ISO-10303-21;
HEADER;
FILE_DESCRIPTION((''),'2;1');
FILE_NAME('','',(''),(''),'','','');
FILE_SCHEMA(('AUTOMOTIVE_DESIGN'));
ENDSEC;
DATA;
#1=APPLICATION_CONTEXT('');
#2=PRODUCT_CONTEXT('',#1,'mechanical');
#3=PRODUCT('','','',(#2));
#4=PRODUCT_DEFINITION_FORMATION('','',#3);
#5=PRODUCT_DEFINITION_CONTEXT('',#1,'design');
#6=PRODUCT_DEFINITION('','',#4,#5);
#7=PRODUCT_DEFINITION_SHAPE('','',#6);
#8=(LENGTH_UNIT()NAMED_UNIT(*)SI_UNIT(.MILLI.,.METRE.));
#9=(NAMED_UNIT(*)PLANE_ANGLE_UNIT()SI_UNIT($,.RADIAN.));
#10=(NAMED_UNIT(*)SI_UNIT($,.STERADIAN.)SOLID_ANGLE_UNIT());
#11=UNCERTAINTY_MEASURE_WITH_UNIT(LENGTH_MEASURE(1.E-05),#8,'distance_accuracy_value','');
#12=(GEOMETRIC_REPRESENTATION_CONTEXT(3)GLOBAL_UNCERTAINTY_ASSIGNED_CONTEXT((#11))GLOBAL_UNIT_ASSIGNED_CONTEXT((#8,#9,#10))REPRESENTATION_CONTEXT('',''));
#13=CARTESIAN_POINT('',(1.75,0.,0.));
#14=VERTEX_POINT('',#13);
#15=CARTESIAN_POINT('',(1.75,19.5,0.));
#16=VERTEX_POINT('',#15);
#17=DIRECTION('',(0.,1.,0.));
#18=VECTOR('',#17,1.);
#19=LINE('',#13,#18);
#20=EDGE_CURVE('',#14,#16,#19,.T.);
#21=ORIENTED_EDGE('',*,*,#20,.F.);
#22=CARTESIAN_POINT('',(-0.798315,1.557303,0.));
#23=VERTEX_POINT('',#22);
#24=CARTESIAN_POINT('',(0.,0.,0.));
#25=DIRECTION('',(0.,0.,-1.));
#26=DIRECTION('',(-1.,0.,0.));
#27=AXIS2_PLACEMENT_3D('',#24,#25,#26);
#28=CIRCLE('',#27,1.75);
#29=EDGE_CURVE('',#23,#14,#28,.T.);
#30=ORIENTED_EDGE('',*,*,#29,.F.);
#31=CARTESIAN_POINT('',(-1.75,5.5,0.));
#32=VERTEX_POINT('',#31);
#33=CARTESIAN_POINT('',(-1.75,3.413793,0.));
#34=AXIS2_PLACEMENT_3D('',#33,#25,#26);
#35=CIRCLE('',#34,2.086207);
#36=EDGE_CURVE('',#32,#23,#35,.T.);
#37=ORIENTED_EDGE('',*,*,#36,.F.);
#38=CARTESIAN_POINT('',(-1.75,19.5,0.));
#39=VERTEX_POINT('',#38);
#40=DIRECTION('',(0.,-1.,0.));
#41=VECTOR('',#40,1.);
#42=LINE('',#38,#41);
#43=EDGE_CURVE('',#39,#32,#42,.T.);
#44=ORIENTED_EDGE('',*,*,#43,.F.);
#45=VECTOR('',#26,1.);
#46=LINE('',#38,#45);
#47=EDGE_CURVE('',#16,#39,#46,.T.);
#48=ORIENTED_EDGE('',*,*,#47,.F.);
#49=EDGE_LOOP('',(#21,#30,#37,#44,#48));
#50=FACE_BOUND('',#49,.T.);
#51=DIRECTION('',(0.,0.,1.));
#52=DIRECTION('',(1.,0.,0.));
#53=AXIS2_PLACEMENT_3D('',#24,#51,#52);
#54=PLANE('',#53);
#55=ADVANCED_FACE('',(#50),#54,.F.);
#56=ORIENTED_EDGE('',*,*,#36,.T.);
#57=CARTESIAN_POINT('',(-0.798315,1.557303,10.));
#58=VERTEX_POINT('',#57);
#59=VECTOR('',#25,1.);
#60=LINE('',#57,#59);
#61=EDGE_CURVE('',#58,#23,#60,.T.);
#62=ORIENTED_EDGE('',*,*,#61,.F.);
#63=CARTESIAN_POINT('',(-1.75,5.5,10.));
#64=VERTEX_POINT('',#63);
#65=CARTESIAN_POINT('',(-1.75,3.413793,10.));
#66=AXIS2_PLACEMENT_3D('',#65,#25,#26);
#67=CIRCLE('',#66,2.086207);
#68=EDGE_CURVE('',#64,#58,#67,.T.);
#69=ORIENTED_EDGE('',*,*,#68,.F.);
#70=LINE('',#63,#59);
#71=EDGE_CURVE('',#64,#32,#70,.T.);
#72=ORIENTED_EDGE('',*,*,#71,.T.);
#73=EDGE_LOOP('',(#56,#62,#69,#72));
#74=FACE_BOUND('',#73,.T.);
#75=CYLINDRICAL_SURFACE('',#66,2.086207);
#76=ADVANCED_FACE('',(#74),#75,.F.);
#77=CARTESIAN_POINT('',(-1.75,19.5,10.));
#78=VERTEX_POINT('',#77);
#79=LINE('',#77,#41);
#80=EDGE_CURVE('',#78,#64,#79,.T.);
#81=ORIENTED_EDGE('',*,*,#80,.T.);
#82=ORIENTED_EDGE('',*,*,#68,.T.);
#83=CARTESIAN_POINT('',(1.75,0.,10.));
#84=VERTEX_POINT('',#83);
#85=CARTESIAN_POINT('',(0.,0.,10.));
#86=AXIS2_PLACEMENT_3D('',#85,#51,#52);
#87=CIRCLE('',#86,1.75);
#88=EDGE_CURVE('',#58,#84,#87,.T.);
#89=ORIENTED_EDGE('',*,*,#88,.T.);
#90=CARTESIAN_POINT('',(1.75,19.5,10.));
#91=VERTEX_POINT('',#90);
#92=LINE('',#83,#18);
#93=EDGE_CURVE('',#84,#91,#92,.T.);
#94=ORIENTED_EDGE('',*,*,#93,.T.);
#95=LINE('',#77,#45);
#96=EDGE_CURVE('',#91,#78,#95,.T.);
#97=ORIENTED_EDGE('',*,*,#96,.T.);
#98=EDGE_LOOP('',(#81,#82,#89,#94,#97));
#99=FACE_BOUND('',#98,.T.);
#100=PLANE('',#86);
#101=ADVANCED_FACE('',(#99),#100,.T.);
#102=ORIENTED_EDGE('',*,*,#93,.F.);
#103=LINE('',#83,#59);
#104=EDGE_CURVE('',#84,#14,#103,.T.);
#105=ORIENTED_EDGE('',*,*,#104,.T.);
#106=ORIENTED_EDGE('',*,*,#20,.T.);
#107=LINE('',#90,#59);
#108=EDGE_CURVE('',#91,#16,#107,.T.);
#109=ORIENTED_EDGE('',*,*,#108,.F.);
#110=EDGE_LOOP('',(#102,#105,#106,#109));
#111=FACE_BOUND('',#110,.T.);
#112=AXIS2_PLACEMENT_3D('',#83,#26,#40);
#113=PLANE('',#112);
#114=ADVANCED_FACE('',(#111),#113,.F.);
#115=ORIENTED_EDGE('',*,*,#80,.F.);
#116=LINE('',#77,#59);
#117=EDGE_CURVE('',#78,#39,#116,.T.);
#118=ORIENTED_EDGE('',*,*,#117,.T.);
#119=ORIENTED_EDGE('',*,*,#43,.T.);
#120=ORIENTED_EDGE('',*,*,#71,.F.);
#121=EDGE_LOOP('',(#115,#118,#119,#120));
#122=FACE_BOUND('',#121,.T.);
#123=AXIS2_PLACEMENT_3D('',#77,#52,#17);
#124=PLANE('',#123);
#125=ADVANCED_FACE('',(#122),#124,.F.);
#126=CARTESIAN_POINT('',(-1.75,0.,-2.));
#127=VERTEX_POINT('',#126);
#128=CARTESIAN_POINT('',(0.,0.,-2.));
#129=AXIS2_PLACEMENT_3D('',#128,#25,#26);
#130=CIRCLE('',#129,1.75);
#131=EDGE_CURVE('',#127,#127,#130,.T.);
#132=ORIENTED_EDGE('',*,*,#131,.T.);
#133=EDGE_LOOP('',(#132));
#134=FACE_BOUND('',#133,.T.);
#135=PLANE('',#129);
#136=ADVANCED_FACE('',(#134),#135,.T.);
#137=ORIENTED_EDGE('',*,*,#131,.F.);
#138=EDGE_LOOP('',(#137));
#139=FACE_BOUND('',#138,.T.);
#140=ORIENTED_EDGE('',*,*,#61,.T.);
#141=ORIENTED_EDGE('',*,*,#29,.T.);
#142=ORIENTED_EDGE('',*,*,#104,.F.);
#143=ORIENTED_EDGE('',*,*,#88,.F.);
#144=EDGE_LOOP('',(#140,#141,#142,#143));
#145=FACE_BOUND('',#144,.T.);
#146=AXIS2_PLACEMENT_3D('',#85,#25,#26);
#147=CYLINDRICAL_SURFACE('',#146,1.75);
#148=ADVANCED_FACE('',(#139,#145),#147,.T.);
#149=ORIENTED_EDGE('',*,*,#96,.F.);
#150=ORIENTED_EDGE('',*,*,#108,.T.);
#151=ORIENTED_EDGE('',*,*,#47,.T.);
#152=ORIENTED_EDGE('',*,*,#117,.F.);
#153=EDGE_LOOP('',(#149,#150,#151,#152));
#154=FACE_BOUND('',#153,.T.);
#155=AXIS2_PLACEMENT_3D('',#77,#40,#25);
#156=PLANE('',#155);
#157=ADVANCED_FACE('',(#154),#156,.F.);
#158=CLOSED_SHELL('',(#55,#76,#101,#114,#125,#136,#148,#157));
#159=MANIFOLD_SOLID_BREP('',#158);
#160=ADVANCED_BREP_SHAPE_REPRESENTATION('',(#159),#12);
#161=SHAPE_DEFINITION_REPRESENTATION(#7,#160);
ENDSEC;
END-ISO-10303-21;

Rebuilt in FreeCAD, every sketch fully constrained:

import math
import FreeCAD as App
import Part
import Sketcher
from FreeCAD import Vector

doc = App.newDocument("Part")
body = doc.addObject("PartDesign::Body", "Body")

sketch1 = doc.addObject("Sketcher::SketchObject", "Sketch")
body.addObject(sketch1)
sketch1.AttachmentSupport = (doc.XY_Plane, [""])
sketch1.MapMode = "FlatFace"
sketch1.addGeometry(Part.LineSegment(Vector(1.8, 0, 0), Vector(1.8, 19.5, 0)), False)
sketch1.addGeometry(Part.LineSegment(Vector(1.8, 19.5, 0), Vector(-1.8, 19.5, 0)), False)
sketch1.addGeometry(Part.LineSegment(Vector(-1.8, 19.5, 0), Vector(-1.8, 5.5, 0)), False)
sketch1.addGeometry(Part.ArcOfCircle(Part.Circle(Vector(-1.7, 3.4, 0), Vector(0, 0, 1), 2.1), math.radians(-63), math.radians(90)), False)
sketch1.addGeometry(Part.ArcOfCircle(Part.Circle(Vector(0, 0, 0), Vector(0, 0, 1), 1.8), math.radians(117), math.radians(360)), False)
sketch1.addConstraint(Sketcher.Constraint("Coincident", 0, 2, 1, 1))
sketch1.addConstraint(Sketcher.Constraint("Coincident", 1, 2, 2, 1))
sketch1.addConstraint(Sketcher.Constraint("Coincident", 2, 2, 3, 2))
sketch1.addConstraint(Sketcher.Constraint("Tangent", 3, 1, 4, 1))
sketch1.addConstraint(Sketcher.Constraint("Tangent", 4, 2, 0, 1))
sketch1.addConstraint(Sketcher.Constraint("Vertical", 0))
sketch1.addConstraint(Sketcher.Constraint("Horizontal", 1))
sketch1.addConstraint(Sketcher.Constraint("Vertical", 2))
sketch1.addConstraint(Sketcher.Constraint("Coincident", 4, 3, -1, 1))
sketch1.addConstraint(Sketcher.Constraint("Vertical", 3, 3, 1, 2))
sketch1.addConstraint(Sketcher.Constraint("DistanceY", 2, 2, 2, 1, 14.0))
sketch1.addConstraint(Sketcher.Constraint("Radius", 4, 1.75))
sketch1.addConstraint(Sketcher.Constraint("DistanceX", 1, 2, 1, 1, 3.5))
sketch1.addConstraint(Sketcher.Constraint("DistanceY", 0, 1, 0, 2, 19.5))
pad1 = doc.addObject("PartDesign::Pad", "Pad")
body.addObject(pad1)
pad1.Profile = sketch1
pad1.Length = 10

sketch2 = doc.addObject("Sketcher::SketchObject", "Sketch001")
body.addObject(sketch2)
sketch2.AttachmentSupport = (doc.XY_Plane, [""])
sketch2.MapMode = "FlatFace"
sketch2.addGeometry(Part.Circle(Vector(0, 0, 0), Vector(0, 0, 1), 1.8), False)
sketch2.addConstraint(Sketcher.Constraint("Coincident", 0, 3, -1, 1))
sketch2.addConstraint(Sketcher.Constraint("Diameter", 0, 3.5))
pad2 = doc.addObject("PartDesign::Pad", "Pad001")
body.addObject(pad2)
pad2.Profile = sketch2
pad2.Length = 2
pad2.Reversed = True

doc.recompute()
